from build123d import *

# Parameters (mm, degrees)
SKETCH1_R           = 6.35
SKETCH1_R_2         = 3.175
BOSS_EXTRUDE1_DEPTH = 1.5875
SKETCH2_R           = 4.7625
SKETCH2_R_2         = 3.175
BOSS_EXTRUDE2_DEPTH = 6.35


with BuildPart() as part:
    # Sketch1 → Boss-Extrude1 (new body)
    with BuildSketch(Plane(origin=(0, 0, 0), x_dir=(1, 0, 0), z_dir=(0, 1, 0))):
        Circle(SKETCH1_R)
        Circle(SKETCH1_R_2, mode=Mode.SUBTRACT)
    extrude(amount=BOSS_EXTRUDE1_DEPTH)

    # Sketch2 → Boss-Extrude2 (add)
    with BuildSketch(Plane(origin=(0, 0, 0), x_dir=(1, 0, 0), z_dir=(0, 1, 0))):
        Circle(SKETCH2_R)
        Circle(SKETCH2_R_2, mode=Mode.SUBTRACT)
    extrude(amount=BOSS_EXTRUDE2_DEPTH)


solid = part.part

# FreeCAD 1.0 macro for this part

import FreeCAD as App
import Part
import Sketcher

V = App.Vector
Q = App.Units.Quantity

doc = App.newDocument("Part")
body = doc.addObject("PartDesign::Body", "Body")

# Sketch on XZ plane
sketch1 = doc.addObject("Sketcher::SketchObject", "Sketch")
body.addObject(sketch1)
sketch1.AttachmentSupport = (doc.XZ_Plane, [""])
sketch1.MapMode = "FlatFace"
sketch1.addGeometry(Part.Circle(V(0, 0, 0), V(0, 0, 1), 6.3), False)
sketch1.addGeometry(Part.Circle(V(0, 0, 0), V(0, 0, 1), 3.2), False)
sketch1.addConstraint(Sketcher.Constraint("Coincident", 0, 3, -1, 1))
sketch1.addConstraint(Sketcher.Constraint("Coincident", 1, 3, -1, 1))
sketch1.addConstraint(Sketcher.Constraint("Diameter", 0, Q("0.5 in")))
sketch1.addConstraint(Sketcher.Constraint("Diameter", 1, Q("0.25 in")))
pad1 = doc.addObject("PartDesign::Pad", "Pad")
body.addObject(pad1)
pad1.Profile = sketch1
pad1.Length = Q("0.0625 in")
pad1.Reversed = True

# Sketch on XZ plane
sketch2 = doc.addObject("Sketcher::SketchObject", "Sketch001")
body.addObject(sketch2)
sketch2.AttachmentSupport = (doc.XZ_Plane, [""])
sketch2.MapMode = "FlatFace"
sketch2.addGeometry(Part.Circle(V(0, 0, 0), V(0, 0, 1), 4.8), False)
sketch2.addGeometry(Part.Circle(V(0, 0, 0), V(0, 0, 1), 3.2), False)
sketch2.addConstraint(Sketcher.Constraint("Coincident", 0, 3, -1, 1))
sketch2.addConstraint(Sketcher.Constraint("Coincident", 1, 3, -1, 1))
sketch2.addConstraint(Sketcher.Constraint("Diameter", 1, Q("0.25 in")))
sketch2.addConstraint(Sketcher.Constraint("Diameter", 0, Q("0.375 in")))
pad2 = doc.addObject("PartDesign::Pad", "Pad001")
body.addObject(pad2)
pad2.Profile = sketch2
pad2.Length = Q("0.25 in")
pad2.Reversed = True

doc.recompute()
